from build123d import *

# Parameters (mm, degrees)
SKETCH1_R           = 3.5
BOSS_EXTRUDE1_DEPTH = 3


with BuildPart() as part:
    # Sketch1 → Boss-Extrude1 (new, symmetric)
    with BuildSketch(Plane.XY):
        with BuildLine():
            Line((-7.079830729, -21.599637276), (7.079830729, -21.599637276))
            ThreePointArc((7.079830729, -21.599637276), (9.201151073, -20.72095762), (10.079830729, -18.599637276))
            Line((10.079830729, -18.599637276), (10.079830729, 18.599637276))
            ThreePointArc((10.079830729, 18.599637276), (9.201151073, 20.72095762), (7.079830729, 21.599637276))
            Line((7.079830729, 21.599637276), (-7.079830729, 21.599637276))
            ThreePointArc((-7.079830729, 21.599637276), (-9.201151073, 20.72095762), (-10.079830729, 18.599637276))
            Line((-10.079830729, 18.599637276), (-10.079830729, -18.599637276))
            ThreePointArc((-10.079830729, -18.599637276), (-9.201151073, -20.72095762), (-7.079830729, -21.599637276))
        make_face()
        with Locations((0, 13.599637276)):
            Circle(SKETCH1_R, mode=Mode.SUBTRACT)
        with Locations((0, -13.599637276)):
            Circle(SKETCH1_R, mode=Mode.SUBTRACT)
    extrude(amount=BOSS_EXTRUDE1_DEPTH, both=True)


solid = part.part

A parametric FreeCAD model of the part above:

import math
import FreeCAD as App
import Part
import Sketcher
from FreeCAD import Vector
Q = App.Units.Quantity

doc = App.newDocument("Part")
body = doc.addObject("PartDesign::Body", "Body")

sketch1 = body.newObject("Sketcher::SketchObject", "Sketch")
sketch1.AttachmentSupport = (doc.getObject("XY_Plane"), [""])
sketch1.MapMode = "FlatFace"
sketch1.addGeometry(Part.LineSegment(Vector(-7.1, -21.6, 0), Vector(7.1, -21.6, 0)), False)
sketch1.addGeometry(Part.ArcOfCircle(Part.Circle(Vector(7.1, -18.6, 0), Vector(0, 0, 1), 3), math.radians(-90), math.radians(0)), False)
sketch1.addGeometry(Part.LineSegment(Vector(10.1, -18.6, 0), Vector(10.1, 18.6, 0)), False)
sketch1.addGeometry(Part.ArcOfCircle(Part.Circle(Vector(7.1, 18.6, 0), Vector(0, 0, 1), 3), math.radians(0), math.radians(90)), False)
sketch1.addGeometry(Part.LineSegment(Vector(7.1, 21.6, 0), Vector(-7.1, 21.6, 0)), False)
sketch1.addGeometry(Part.ArcOfCircle(Part.Circle(Vector(-7.1, 18.6, 0), Vector(0, 0, 1), 3), math.radians(90), math.radians(180)), False)
sketch1.addGeometry(Part.LineSegment(Vector(-10.1, 18.6, 0), Vector(-10.1, -18.6, 0)), False)
sketch1.addGeometry(Part.ArcOfCircle(Part.Circle(Vector(-7.1, -18.6, 0), Vector(0, 0, 1), 3), math.radians(180), math.radians(270)), False)
sketch1.addGeometry(Part.Circle(Vector(0, -13.6, 0), Vector(0, 0, 1), 3.5), False)
sketch1.addGeometry(Part.Circle(Vector(0, 13.6, 0), Vector(0, 0, 1), 3.5), False)
sketch1.addConstraint(Sketcher.Constraint("Tangent", 0, 2, 1, 1))
sketch1.addConstraint(Sketcher.Constraint("Tangent", 1, 2, 2, 1))
sketch1.addConstraint(Sketcher.Constraint("Tangent", 2, 2, 3, 1))
sketch1.addConstraint(Sketcher.Constraint("Tangent", 3, 2, 4, 1))
sketch1.addConstraint(Sketcher.Constraint("Tangent", 4, 2, 5, 1))
sketch1.addConstraint(Sketcher.Constraint("Tangent", 5, 2, 6, 1))
sketch1.addConstraint(Sketcher.Constraint("Tangent", 6, 2, 7, 1))
sketch1.addConstraint(Sketcher.Constraint("Tangent", 7, 2, 0, 1))
sketch1.addConstraint(Sketcher.Constraint("Horizontal", 0))
sketch1.addConstraint(Sketcher.Constraint("Vertical", 2))
sketch1.addConstraint(Sketcher.Constraint("Horizontal", 4))
sketch1.addConstraint(Sketcher.Constraint("Vertical", 6))
sketch1.addConstraint(Sketcher.Constraint("Equal", 1, 3))
sketch1.addConstraint(Sketcher.Constraint("Equal", 3, 5))
sketch1.addConstraint(Sketcher.Constraint("Equal", 5, 7))
sketch1.addConstraint(Sketcher.Constraint("Equal", 8, 9))
sketch1.addConstraint(Sketcher.Constraint("Symmetric", 1, 3, 5, 3, -1, 1))
sketch1.addConstraint(Sketcher.Constraint("Symmetric", 8, 3, 9, 3, -1, 1))
sketch1.addConstraint(Sketcher.Constraint("PointOnObject", 8, 3, -2))
sketch1.addConstraint(Sketcher.Constraint("Diameter", 8, Q("7 mm")))
sketch1.addConstraint(Sketcher.Constraint("Radius", 1, Q("3 mm")))
sketch1.addConstraint(Sketcher.Constraint("DistanceY", 1, 3, 8, 3, Q("5 mm")))
sketch1.addConstraint(Sketcher.Constraint("DistanceX", 0, 1, 0, 2, Q("14.159661 mm")))
sketch1.addConstraint(Sketcher.Constraint("DistanceY", 2, 1, 2, 2, Q("37.199275 mm")))
pad1 = body.newObject("PartDesign::Pad", "Pad")
pad1.Profile = sketch1
pad1.Length = 6
pad1.Midplane = True

doc.recompute()
